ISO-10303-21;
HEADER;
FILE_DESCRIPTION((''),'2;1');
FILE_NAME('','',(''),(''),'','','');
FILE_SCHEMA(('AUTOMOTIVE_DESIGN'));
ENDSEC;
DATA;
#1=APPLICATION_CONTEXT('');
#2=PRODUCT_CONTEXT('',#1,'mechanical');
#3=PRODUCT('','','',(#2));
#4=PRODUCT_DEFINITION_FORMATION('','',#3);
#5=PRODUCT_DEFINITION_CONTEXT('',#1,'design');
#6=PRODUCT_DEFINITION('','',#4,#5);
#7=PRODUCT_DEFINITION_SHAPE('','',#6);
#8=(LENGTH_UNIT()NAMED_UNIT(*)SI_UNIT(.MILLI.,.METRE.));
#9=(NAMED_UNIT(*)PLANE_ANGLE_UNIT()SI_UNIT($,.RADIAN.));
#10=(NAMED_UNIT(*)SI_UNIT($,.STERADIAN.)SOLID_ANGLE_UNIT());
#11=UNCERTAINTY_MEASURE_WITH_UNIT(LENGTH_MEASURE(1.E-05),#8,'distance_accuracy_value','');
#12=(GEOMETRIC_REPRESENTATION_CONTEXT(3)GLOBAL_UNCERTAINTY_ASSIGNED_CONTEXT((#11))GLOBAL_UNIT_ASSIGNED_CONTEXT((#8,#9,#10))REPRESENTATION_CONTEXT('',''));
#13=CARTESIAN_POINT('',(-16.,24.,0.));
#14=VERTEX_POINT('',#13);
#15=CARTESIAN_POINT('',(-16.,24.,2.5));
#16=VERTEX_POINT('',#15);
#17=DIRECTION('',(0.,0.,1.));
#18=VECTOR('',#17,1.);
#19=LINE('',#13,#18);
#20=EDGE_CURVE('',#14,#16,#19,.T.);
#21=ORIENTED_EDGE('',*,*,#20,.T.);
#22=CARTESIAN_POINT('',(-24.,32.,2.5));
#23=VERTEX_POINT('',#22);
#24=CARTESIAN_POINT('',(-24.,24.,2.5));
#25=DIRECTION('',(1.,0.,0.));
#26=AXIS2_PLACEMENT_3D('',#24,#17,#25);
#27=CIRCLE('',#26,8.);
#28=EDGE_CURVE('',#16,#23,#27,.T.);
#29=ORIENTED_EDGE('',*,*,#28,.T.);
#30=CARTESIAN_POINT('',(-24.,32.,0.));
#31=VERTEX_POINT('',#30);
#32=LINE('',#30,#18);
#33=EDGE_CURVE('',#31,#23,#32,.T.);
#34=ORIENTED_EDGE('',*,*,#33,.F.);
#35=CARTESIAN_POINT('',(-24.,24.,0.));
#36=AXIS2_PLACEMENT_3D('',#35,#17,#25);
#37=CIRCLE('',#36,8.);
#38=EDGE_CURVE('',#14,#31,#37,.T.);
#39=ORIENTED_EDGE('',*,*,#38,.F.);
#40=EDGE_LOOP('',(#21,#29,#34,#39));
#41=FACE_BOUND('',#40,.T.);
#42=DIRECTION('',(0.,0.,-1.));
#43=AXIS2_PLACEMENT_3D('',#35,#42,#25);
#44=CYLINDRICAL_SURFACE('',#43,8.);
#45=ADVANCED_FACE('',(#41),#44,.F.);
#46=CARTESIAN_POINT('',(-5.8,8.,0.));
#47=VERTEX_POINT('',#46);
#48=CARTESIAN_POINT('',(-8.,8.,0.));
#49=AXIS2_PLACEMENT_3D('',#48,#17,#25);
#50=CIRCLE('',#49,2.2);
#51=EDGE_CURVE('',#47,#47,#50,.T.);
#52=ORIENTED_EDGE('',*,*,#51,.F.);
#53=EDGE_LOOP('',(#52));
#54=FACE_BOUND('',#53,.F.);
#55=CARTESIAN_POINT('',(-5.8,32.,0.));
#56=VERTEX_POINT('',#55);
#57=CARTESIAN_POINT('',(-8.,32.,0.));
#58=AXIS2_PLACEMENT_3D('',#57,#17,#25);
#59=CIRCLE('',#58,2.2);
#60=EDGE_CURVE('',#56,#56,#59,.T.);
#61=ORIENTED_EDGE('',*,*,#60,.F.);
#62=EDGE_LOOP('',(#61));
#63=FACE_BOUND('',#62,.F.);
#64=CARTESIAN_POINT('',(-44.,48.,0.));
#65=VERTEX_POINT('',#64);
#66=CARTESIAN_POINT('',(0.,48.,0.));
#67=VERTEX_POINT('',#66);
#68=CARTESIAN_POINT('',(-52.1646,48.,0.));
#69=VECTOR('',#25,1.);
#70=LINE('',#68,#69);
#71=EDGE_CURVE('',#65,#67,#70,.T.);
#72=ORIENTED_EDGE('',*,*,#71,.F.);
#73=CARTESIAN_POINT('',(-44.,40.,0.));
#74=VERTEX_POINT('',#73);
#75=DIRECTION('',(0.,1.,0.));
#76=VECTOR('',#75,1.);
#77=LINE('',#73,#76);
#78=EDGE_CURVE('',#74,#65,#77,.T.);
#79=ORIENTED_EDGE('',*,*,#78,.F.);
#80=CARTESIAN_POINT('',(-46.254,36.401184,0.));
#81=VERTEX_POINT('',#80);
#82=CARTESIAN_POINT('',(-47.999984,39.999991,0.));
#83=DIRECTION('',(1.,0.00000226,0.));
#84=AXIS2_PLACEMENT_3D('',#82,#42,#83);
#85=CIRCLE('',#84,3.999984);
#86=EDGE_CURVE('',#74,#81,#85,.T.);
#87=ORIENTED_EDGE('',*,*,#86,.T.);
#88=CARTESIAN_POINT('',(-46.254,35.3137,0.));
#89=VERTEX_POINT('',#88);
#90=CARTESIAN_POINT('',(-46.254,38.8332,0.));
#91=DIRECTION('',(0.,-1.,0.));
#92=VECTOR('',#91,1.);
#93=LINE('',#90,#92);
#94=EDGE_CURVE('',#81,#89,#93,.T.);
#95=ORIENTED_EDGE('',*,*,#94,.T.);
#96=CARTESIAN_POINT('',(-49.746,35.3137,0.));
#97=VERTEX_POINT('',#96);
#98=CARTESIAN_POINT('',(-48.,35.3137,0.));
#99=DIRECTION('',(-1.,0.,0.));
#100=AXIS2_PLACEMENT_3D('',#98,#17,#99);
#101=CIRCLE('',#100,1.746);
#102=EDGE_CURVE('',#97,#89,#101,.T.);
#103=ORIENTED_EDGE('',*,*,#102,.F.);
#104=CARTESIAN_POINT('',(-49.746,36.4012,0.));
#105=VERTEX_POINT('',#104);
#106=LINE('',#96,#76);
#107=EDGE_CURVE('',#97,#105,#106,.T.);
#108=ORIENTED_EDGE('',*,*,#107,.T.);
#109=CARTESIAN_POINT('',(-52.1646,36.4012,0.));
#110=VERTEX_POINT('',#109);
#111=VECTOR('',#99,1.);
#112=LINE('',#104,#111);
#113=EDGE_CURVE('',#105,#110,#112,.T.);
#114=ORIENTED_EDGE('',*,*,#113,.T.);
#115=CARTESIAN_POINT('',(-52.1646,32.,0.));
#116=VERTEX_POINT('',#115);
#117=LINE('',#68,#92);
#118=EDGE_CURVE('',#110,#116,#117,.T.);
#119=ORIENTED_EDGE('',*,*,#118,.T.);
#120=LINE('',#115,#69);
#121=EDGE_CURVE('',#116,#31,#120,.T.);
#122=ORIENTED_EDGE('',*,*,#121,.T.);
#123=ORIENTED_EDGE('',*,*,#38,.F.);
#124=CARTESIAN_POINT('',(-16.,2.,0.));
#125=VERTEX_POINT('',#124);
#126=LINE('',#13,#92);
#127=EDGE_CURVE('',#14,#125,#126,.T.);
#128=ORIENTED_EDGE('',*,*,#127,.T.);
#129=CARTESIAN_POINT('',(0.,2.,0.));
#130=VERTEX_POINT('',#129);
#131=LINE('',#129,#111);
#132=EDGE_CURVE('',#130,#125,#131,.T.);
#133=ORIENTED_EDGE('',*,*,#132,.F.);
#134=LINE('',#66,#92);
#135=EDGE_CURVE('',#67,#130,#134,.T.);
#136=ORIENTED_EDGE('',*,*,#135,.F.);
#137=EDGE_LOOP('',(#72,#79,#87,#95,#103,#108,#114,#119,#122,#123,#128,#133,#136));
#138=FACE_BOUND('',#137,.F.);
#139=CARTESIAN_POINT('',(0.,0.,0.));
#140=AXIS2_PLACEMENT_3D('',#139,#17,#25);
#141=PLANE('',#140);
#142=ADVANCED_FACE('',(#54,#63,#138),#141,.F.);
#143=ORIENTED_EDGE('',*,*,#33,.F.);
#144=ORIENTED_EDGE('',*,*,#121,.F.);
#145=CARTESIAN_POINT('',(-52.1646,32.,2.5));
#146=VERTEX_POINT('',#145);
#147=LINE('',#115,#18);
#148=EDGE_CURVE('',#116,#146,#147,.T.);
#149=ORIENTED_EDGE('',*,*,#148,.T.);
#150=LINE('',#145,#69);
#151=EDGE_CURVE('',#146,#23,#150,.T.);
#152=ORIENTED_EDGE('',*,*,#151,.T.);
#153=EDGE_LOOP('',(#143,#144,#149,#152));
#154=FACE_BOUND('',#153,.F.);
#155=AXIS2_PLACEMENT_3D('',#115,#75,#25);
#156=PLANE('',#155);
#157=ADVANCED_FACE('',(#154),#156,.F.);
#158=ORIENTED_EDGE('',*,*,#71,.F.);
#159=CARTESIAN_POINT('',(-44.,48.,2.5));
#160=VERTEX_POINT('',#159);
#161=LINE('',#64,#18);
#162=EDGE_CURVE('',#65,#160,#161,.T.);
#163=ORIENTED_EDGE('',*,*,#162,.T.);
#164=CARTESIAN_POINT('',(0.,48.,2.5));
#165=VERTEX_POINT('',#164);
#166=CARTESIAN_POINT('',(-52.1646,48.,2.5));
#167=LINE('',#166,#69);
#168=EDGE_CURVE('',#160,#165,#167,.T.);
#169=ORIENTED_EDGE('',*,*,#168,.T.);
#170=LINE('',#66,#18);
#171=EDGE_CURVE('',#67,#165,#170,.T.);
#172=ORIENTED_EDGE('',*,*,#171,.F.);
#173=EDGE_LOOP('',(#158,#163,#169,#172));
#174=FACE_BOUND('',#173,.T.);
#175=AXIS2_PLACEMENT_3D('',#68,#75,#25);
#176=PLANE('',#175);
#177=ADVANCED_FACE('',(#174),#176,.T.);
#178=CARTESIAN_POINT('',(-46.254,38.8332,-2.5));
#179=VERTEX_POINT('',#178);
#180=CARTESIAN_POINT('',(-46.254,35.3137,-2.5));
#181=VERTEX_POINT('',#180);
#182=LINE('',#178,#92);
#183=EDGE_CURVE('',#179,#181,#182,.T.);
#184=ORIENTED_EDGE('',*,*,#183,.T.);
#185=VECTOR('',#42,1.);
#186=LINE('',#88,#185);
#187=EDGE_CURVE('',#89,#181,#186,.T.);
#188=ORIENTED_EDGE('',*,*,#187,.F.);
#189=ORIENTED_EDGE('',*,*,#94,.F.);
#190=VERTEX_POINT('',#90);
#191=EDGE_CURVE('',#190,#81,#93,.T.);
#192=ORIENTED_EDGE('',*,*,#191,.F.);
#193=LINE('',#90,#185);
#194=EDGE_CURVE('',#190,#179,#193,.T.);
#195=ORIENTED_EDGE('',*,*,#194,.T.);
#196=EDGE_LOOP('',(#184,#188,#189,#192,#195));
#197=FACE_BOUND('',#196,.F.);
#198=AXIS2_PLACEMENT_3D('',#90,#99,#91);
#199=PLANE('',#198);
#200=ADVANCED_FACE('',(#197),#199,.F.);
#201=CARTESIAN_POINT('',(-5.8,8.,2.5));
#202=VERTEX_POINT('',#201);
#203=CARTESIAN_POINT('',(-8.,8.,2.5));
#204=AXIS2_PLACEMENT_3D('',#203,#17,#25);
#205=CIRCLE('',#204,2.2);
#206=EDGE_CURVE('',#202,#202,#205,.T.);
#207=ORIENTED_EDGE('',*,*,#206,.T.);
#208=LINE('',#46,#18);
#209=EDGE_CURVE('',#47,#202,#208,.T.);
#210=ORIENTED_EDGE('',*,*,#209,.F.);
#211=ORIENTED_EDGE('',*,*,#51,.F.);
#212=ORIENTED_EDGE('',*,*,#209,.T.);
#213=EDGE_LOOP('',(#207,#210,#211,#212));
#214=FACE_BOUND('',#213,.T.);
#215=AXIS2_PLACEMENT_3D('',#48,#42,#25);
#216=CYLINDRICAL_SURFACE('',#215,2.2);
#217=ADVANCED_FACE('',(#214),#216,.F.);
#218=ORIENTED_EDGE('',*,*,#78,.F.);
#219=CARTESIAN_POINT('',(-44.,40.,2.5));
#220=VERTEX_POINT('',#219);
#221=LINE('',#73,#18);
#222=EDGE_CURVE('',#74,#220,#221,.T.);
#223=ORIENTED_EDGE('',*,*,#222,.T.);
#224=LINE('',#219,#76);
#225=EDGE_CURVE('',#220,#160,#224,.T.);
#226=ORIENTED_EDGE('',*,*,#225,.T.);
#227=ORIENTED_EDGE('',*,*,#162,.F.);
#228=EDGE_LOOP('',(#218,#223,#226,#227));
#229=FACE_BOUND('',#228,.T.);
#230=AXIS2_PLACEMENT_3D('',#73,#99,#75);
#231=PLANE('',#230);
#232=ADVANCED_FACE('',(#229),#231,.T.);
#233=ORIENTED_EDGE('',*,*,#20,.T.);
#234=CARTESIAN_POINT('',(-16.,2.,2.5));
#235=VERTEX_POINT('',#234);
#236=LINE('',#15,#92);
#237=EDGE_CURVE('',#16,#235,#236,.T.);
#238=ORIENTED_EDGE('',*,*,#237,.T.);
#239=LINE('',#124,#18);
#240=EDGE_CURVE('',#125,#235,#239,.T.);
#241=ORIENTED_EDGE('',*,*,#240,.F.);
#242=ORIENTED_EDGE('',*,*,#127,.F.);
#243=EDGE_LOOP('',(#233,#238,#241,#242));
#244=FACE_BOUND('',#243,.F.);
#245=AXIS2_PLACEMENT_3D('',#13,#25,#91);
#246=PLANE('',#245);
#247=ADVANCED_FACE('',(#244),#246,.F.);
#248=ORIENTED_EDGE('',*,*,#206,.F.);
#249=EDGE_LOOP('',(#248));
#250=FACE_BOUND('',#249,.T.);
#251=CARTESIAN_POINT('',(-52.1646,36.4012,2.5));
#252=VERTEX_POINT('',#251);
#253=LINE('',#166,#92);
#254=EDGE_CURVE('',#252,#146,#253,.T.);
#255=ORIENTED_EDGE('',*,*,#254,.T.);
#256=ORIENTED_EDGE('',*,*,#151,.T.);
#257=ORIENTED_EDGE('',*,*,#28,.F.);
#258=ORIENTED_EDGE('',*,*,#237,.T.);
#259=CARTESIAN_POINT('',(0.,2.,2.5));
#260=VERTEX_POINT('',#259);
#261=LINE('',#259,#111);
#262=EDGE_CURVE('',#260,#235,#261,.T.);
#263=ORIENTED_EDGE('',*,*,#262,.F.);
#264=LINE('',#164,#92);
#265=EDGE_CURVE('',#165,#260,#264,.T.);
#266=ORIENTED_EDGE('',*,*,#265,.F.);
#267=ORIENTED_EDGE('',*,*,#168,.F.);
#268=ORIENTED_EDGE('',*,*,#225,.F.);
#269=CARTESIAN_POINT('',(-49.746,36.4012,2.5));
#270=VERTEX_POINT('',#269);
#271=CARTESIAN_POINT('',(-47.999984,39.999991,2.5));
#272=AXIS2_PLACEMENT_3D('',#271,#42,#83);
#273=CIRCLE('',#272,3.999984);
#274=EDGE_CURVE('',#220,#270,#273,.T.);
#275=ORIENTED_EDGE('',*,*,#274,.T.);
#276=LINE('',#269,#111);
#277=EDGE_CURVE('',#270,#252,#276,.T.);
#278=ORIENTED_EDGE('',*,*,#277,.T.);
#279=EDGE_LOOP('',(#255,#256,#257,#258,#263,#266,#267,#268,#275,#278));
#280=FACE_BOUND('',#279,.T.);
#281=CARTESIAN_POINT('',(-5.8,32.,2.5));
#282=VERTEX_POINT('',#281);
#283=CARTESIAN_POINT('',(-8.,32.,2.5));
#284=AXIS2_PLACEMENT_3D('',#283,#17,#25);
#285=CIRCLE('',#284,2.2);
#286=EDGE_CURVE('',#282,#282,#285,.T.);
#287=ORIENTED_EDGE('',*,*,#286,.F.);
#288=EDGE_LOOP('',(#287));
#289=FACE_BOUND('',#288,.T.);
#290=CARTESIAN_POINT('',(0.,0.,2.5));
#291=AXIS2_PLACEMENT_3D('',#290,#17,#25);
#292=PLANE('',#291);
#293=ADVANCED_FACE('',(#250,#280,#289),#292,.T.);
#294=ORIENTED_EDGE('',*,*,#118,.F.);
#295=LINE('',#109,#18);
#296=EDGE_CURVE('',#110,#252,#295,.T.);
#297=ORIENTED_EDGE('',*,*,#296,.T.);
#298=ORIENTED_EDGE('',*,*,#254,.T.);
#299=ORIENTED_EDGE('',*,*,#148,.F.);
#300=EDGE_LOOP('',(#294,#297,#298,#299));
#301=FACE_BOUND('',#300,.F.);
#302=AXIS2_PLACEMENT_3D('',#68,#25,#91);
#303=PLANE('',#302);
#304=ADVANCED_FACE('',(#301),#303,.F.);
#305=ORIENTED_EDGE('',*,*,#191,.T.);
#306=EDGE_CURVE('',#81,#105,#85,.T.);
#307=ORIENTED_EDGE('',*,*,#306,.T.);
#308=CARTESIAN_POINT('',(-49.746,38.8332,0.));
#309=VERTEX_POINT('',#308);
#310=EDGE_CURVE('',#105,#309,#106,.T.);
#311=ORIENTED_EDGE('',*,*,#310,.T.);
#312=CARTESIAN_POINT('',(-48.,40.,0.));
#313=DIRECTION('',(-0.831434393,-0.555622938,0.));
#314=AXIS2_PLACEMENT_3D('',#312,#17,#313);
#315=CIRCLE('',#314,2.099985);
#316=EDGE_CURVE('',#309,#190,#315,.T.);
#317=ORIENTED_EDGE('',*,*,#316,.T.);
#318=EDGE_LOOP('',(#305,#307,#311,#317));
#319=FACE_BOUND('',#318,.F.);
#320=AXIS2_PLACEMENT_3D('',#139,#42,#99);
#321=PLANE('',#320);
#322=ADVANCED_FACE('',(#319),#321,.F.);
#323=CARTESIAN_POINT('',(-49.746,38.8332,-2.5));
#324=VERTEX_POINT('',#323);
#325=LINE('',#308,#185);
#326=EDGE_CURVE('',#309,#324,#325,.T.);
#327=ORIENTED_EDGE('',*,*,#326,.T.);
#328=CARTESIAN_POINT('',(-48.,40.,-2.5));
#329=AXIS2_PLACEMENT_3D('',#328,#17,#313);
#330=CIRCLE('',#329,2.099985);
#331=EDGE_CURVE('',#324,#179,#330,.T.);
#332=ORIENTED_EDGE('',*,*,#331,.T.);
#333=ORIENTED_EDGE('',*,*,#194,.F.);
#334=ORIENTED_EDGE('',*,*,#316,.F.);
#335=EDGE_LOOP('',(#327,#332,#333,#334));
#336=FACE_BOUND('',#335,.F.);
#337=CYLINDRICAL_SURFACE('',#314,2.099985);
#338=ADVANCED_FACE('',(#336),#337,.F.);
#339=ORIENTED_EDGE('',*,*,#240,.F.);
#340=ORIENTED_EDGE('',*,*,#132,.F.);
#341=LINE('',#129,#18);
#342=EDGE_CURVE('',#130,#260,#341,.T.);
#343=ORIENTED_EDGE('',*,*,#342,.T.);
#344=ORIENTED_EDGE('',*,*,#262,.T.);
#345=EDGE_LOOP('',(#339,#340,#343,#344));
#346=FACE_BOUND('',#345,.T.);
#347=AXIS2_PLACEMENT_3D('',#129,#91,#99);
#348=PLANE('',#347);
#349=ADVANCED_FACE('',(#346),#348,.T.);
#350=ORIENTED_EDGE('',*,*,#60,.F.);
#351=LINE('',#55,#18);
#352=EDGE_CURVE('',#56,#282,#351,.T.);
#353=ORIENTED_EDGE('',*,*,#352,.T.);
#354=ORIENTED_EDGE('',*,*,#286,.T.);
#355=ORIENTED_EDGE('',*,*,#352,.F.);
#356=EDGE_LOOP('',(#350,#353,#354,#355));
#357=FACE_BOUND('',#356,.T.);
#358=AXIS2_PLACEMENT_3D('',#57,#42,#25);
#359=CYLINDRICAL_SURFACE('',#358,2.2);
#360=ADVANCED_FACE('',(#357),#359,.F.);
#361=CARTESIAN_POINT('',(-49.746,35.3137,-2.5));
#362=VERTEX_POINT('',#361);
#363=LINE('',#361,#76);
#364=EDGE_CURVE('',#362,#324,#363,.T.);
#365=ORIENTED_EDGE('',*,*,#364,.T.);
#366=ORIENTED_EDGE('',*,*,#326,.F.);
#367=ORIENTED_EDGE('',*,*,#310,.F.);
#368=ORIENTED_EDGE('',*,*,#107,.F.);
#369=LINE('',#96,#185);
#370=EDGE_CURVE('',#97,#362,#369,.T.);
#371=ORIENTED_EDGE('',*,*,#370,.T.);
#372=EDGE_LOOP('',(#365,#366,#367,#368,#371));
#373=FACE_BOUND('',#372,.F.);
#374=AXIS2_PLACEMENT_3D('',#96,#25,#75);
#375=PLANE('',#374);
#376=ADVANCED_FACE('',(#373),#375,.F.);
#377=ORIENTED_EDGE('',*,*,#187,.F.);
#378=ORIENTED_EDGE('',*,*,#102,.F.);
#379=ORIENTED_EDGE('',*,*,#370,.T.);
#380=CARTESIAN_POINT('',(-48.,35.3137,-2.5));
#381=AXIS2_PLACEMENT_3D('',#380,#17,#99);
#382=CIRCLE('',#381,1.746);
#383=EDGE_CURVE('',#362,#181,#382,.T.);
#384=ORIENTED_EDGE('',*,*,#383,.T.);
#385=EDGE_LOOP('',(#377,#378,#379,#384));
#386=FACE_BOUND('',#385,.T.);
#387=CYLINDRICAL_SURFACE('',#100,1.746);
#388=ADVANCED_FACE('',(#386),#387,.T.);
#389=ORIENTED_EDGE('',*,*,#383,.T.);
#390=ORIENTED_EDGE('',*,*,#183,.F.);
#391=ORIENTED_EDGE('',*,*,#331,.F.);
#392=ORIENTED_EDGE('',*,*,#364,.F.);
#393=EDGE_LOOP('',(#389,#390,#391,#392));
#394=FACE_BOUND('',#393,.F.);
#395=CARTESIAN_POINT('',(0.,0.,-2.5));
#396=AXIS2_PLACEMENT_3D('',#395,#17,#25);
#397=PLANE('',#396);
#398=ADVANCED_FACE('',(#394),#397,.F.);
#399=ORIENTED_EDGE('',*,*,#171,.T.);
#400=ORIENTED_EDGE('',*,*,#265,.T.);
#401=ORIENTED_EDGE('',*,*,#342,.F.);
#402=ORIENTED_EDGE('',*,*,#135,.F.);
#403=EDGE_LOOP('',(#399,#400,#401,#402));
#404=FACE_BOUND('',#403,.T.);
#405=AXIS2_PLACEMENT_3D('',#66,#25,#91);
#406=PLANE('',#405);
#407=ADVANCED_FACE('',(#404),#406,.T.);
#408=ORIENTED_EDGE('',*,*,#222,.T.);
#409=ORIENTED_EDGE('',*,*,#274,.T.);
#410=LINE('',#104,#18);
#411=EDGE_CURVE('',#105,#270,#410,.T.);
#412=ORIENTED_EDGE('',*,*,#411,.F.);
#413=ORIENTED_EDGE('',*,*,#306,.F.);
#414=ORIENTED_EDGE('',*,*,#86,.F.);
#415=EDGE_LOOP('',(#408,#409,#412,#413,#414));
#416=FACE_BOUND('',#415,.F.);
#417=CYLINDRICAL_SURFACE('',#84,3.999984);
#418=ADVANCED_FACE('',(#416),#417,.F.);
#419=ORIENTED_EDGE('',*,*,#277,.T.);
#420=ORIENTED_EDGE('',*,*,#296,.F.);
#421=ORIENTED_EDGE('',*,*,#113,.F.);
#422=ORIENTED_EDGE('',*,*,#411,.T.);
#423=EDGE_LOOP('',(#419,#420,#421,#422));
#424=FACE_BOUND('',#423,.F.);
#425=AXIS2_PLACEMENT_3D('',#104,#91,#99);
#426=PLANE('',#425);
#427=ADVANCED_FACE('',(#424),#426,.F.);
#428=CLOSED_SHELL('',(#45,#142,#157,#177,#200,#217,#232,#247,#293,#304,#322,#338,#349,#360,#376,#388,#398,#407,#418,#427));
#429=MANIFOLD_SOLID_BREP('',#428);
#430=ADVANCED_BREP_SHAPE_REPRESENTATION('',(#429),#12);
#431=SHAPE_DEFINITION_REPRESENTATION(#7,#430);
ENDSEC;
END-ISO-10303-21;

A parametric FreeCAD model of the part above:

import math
import FreeCAD as App
import Part
import Sketcher
from FreeCAD import Vector

doc = App.newDocument("Part")
body = doc.addObject("PartDesign::Body", "Body")

sketch1 = doc.addObject("Sketcher::SketchObject", "Sketch")
body.addObject(sketch1)
sketch1.AttachmentSupport = (doc.XY_Plane, [""])
sketch1.MapMode = "FlatFace"
sketch1.addGeometry([
    Part.LineSegment(Vector(-46.254, 35.3137, 0), Vector(-46.254, 38.8332, 0)),
    Part.ArcOfCircle(Part.Circle(Vector(-48, 40, 0), Vector(0, 0, 1), 2.099985), math.radians(-146.246368), math.radians(-33.753632)),
    Part.LineSegment(Vector(-49.746, 38.8332, 0), Vector(-49.746, 35.3137, 0)),
    Part.ArcOfCircle(Part.Circle(Vector(-48, 35.3137, 0), Vector(0, 0, 1), 1.746), math.radians(180), math.radians(360)),
], False)
sketch1.addConstraint([
    Sketcher.Constraint("Coincident", 0, 2, 1, 2),
    Sketcher.Constraint("Coincident", 1, 1, 2, 1),
    Sketcher.Constraint("Tangent", 2, 2, 3, 1),
    Sketcher.Constraint("Tangent", 3, 2, 0, 1),
    Sketcher.Constraint("Vertical", 0),
    Sketcher.Constraint("Vertical", 2),
    Sketcher.Constraint("Horizontal", 0, 2, 1, 1),
    Sketcher.Constraint("Radius", 1, 2.1),
    Sketcher.Constraint("DistanceX", 1, 3, -1, 1, 48.0),
    Sketcher.Constraint("DistanceY", -1, 1, 1, 3, 40.0),
    Sketcher.Constraint("Radius", 3, 1.746),
    Sketcher.Constraint("DistanceY", 0, 1, 0, 2, 3.5195),
])
pad1 = doc.addObject("PartDesign::Pad", "Pad")
body.addObject(pad1)
pad1.Profile = sketch1
pad1.Length = 2.5
pad1.Reversed = True

sketch2 = doc.addObject("Sketcher::SketchObject", "Sketch001")
body.addObject(sketch2)
sketch2.AttachmentSupport = (doc.XY_Plane, [""])
sketch2.MapMode = "FlatFace"
sketch2.addGeometry([
    Part.LineSegment(Vector(0, 48, 0), Vector(-52.1646, 48, 0)),
    Part.LineSegment(Vector(-52.1646, 48, 0), Vector(-52.1646, 32, 0)),
    Part.LineSegment(Vector(-52.1646, 32, 0), Vector(-24, 32, 0)),
    Part.ArcOfCircle(Part.Circle(Vector(-24, 24, 0), Vector(0, 0, 1), 8), math.radians(0), math.radians(90)),
    Part.LineSegment(Vector(-16, 24, 0), Vector(-16, 2, 0)),
    Part.LineSegment(Vector(-16, 2, 0), Vector(0, 2, 0)),
    Part.LineSegment(Vector(0, 2, 0), Vector(0, 48, 0)),
    Part.Circle(Vector(-8, 8, 0), Vector(0, 0, 1), 2.2),
    Part.Circle(Vector(-8, 32, 0), Vector(0, 0, 1), 2.2),
], False)
sketch2.addConstraint([
    Sketcher.Constraint("Coincident", 0, 2, 1, 1),
    Sketcher.Constraint("Coincident", 1, 2, 2, 1),
    Sketcher.Constraint("Tangent", 2, 2, 3, 2),
    Sketcher.Constraint("Tangent", 3, 1, 4, 1),
    Sketcher.Constraint("Coincident", 4, 2, 5, 1),
    Sketcher.Constraint("Coincident", 5, 2, 6, 1),
    Sketcher.Constraint("Coincident", 6, 2, 0, 1),
    Sketcher.Constraint("Horizontal", 0),
    Sketcher.Constraint("Vertical", 1),
    Sketcher.Constraint("Horizontal", 2),
    Sketcher.Constraint("Vertical", 4),
    Sketcher.Constraint("Horizontal", 5),
    Sketcher.Constraint("Vertical", 6),
    Sketcher.Constraint("Equal", 7, 8),
    Sketcher.Constraint("PointOnObject", 5, 2, -2),
    Sketcher.Constraint("Horizontal", 8, 3, 1, 2),
    Sketcher.Constraint("Vertical", 7, 3, 8, 3),
    Sketcher.Constraint("Equal", 5, 1),
    Sketcher.Constraint("Radius", 3, 8.0),
    Sketcher.Constraint("Diameter", 7, 4.4),
    Sketcher.Constraint("DistanceX", 5, 1, 5, 2, 16.0),
    Sketcher.Constraint("DistanceY", 6, 1, 6, 2, 46.0),
    Sketcher.Constraint("DistanceY", -1, 1, 3, 3, 24.0),
    Sketcher.Constraint("DistanceX", 7, 3, -1, 1, 8.0),
    Sketcher.Constraint("DistanceY", -1, 1, 7, 3, 8.0),
    Sketcher.Constraint("DistanceX", 0, 2, 0, 1, 52.1646),
])
pad2 = doc.addObject("PartDesign::Pad", "Pad001")
body.addObject(pad2)
pad2.Profile = sketch2
pad2.Length = 2.5

sketch3 = doc.addObject("Sketcher::SketchObject", "Sketch002")
body.addObject(sketch3)
sketch3.AttachmentSupport = (doc.XY_Plane, [""])
sketch3.MapMode = "FlatFace"
sketch3.addGeometry([
    Part.LineSegment(Vector(-44, 48, 0), Vector(-44, 40, 0)),
    Part.ArcOfCircle(Part.Circle(Vector(-48, 40, 0), Vector(0, 0, 1), 4), math.radians(-115.880886), math.radians(0)),
    Part.LineSegment(Vector(-49.746, 36.4012, 0), Vector(-52.1646, 36.4012, 0)),
    Part.LineSegment(Vector(-52.1646, 36.4012, 0), Vector(-52.1646, 48, 0)),
    Part.LineSegment(Vector(-52.1646, 48, 0), Vector(-44, 48, 0)),
], False)
sketch3.addConstraint([
    Sketcher.Constraint("Tangent", 0, 2, 1, 2),
    Sketcher.Constraint("Coincident", 1, 1, 2, 1),
    Sketcher.Constraint("Coincident", 2, 2, 3, 1),
    Sketcher.Constraint("Coincident", 3, 2, 4, 1),
    Sketcher.Constraint("Coincident", 4, 2, 0, 1),
    Sketcher.Constraint("Vertical", 0),
    Sketcher.Constraint("Horizontal", 2),
    Sketcher.Constraint("Vertical", 3),
    Sketcher.Constraint("Horizontal", 4),
    Sketcher.Constraint("Radius", 1, 4.0),
    Sketcher.Constraint("DistanceY", 0, 2, 0, 1, 8.0),
    Sketcher.Constraint("DistanceX", 1, 3, -1, 1, 48.0),
    Sketcher.Constraint("DistanceY", -1, 1, 1, 3, 40.0),
    Sketcher.Constraint("DistanceX", 2, 2, 2, 1, 2.4186),
    Sketcher.Constraint("DistanceX", 4, 1, 4, 2, 8.1646),
])
pocket1 = doc.addObject("PartDesign::Pocket", "Pocket")
body.addObject(pocket1)
pocket1.Profile = sketch3
pocket1.Length = 2.5
pocket1.Reversed = True

doc.recompute()
